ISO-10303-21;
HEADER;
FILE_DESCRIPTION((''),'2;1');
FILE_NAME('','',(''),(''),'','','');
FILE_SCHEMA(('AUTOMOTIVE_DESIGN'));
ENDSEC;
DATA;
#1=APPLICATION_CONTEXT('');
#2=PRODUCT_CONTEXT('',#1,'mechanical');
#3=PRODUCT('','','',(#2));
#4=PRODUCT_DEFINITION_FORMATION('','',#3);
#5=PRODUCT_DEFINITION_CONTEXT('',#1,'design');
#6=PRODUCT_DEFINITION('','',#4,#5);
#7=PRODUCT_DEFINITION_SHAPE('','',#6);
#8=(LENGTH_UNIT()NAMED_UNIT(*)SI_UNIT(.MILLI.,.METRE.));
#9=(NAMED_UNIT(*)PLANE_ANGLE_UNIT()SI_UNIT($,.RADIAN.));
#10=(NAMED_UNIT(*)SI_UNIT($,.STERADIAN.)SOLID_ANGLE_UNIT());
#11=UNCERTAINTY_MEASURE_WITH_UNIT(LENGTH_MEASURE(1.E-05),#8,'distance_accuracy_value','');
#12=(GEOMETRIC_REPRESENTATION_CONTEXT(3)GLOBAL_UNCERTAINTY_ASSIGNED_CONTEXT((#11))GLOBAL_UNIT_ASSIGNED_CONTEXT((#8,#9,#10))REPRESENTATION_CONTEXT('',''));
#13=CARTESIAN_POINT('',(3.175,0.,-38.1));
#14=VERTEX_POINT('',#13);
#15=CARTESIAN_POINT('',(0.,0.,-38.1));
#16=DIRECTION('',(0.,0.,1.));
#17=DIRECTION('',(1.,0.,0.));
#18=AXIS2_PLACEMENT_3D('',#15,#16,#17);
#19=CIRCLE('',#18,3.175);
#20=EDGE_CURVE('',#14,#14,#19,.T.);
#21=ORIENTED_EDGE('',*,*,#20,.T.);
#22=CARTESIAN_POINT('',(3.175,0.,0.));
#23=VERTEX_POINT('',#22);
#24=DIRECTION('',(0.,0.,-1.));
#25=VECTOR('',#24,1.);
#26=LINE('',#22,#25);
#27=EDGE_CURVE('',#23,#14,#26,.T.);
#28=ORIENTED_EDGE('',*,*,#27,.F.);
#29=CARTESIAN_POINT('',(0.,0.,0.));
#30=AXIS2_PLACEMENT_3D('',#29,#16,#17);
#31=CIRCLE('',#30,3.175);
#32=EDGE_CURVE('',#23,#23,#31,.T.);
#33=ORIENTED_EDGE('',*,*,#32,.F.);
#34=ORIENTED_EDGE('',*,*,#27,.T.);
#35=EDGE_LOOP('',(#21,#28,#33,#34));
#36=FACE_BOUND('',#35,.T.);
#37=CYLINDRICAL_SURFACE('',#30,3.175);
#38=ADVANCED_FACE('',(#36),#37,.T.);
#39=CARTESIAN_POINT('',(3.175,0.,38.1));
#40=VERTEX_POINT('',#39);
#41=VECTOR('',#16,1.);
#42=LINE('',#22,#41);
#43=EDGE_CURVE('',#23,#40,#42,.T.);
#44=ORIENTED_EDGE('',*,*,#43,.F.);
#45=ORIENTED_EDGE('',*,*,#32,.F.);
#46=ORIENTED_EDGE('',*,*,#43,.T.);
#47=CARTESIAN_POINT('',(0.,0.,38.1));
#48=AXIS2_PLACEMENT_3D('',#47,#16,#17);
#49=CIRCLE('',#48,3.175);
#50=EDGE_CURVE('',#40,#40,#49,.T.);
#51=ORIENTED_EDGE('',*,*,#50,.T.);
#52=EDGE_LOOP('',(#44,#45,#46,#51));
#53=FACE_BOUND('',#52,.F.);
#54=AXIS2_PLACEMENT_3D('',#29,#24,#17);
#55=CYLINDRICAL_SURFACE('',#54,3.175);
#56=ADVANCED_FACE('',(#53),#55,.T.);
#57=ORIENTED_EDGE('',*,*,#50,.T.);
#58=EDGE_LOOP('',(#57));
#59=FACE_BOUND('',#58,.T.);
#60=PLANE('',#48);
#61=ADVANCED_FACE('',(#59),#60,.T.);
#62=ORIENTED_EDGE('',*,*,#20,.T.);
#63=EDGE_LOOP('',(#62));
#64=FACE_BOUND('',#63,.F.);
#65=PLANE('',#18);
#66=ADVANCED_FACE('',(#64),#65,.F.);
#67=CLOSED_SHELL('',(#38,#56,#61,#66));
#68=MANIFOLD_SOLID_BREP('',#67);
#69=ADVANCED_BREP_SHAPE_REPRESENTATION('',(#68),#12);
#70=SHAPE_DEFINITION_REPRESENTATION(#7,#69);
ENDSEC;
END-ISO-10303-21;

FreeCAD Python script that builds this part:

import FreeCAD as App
import Part
import Sketcher
Q = App.Units.Quantity

doc = App.newDocument("Part")
body = doc.addObject("PartDesign::Body", "Body")

# Sketch on XY plane
sketch1 = body.newObject("Sketcher::SketchObject", "Sketch")
sketch1.AttachmentSupport = (doc.getObject("XY_Plane"), [""])
sketch1.MapMode = "FlatFace"
sketch1.addGeometry(Part.Circle(App.Vector(0, 0, 0), App.Vector(0, 0, 1), 3.2), False)
sketch1.addConstraint(Sketcher.Constraint("Coincident", 0, 3, -1, 1))
sketch1.addConstraint(Sketcher.Constraint("Diameter", 0, Q("0.25 in")))
pad1 = body.newObject("PartDesign::Pad", "Pad")
pad1.Profile = sketch1
pad1.Length = Q("3 in")
pad1.Midplane = True

doc.recompute()
